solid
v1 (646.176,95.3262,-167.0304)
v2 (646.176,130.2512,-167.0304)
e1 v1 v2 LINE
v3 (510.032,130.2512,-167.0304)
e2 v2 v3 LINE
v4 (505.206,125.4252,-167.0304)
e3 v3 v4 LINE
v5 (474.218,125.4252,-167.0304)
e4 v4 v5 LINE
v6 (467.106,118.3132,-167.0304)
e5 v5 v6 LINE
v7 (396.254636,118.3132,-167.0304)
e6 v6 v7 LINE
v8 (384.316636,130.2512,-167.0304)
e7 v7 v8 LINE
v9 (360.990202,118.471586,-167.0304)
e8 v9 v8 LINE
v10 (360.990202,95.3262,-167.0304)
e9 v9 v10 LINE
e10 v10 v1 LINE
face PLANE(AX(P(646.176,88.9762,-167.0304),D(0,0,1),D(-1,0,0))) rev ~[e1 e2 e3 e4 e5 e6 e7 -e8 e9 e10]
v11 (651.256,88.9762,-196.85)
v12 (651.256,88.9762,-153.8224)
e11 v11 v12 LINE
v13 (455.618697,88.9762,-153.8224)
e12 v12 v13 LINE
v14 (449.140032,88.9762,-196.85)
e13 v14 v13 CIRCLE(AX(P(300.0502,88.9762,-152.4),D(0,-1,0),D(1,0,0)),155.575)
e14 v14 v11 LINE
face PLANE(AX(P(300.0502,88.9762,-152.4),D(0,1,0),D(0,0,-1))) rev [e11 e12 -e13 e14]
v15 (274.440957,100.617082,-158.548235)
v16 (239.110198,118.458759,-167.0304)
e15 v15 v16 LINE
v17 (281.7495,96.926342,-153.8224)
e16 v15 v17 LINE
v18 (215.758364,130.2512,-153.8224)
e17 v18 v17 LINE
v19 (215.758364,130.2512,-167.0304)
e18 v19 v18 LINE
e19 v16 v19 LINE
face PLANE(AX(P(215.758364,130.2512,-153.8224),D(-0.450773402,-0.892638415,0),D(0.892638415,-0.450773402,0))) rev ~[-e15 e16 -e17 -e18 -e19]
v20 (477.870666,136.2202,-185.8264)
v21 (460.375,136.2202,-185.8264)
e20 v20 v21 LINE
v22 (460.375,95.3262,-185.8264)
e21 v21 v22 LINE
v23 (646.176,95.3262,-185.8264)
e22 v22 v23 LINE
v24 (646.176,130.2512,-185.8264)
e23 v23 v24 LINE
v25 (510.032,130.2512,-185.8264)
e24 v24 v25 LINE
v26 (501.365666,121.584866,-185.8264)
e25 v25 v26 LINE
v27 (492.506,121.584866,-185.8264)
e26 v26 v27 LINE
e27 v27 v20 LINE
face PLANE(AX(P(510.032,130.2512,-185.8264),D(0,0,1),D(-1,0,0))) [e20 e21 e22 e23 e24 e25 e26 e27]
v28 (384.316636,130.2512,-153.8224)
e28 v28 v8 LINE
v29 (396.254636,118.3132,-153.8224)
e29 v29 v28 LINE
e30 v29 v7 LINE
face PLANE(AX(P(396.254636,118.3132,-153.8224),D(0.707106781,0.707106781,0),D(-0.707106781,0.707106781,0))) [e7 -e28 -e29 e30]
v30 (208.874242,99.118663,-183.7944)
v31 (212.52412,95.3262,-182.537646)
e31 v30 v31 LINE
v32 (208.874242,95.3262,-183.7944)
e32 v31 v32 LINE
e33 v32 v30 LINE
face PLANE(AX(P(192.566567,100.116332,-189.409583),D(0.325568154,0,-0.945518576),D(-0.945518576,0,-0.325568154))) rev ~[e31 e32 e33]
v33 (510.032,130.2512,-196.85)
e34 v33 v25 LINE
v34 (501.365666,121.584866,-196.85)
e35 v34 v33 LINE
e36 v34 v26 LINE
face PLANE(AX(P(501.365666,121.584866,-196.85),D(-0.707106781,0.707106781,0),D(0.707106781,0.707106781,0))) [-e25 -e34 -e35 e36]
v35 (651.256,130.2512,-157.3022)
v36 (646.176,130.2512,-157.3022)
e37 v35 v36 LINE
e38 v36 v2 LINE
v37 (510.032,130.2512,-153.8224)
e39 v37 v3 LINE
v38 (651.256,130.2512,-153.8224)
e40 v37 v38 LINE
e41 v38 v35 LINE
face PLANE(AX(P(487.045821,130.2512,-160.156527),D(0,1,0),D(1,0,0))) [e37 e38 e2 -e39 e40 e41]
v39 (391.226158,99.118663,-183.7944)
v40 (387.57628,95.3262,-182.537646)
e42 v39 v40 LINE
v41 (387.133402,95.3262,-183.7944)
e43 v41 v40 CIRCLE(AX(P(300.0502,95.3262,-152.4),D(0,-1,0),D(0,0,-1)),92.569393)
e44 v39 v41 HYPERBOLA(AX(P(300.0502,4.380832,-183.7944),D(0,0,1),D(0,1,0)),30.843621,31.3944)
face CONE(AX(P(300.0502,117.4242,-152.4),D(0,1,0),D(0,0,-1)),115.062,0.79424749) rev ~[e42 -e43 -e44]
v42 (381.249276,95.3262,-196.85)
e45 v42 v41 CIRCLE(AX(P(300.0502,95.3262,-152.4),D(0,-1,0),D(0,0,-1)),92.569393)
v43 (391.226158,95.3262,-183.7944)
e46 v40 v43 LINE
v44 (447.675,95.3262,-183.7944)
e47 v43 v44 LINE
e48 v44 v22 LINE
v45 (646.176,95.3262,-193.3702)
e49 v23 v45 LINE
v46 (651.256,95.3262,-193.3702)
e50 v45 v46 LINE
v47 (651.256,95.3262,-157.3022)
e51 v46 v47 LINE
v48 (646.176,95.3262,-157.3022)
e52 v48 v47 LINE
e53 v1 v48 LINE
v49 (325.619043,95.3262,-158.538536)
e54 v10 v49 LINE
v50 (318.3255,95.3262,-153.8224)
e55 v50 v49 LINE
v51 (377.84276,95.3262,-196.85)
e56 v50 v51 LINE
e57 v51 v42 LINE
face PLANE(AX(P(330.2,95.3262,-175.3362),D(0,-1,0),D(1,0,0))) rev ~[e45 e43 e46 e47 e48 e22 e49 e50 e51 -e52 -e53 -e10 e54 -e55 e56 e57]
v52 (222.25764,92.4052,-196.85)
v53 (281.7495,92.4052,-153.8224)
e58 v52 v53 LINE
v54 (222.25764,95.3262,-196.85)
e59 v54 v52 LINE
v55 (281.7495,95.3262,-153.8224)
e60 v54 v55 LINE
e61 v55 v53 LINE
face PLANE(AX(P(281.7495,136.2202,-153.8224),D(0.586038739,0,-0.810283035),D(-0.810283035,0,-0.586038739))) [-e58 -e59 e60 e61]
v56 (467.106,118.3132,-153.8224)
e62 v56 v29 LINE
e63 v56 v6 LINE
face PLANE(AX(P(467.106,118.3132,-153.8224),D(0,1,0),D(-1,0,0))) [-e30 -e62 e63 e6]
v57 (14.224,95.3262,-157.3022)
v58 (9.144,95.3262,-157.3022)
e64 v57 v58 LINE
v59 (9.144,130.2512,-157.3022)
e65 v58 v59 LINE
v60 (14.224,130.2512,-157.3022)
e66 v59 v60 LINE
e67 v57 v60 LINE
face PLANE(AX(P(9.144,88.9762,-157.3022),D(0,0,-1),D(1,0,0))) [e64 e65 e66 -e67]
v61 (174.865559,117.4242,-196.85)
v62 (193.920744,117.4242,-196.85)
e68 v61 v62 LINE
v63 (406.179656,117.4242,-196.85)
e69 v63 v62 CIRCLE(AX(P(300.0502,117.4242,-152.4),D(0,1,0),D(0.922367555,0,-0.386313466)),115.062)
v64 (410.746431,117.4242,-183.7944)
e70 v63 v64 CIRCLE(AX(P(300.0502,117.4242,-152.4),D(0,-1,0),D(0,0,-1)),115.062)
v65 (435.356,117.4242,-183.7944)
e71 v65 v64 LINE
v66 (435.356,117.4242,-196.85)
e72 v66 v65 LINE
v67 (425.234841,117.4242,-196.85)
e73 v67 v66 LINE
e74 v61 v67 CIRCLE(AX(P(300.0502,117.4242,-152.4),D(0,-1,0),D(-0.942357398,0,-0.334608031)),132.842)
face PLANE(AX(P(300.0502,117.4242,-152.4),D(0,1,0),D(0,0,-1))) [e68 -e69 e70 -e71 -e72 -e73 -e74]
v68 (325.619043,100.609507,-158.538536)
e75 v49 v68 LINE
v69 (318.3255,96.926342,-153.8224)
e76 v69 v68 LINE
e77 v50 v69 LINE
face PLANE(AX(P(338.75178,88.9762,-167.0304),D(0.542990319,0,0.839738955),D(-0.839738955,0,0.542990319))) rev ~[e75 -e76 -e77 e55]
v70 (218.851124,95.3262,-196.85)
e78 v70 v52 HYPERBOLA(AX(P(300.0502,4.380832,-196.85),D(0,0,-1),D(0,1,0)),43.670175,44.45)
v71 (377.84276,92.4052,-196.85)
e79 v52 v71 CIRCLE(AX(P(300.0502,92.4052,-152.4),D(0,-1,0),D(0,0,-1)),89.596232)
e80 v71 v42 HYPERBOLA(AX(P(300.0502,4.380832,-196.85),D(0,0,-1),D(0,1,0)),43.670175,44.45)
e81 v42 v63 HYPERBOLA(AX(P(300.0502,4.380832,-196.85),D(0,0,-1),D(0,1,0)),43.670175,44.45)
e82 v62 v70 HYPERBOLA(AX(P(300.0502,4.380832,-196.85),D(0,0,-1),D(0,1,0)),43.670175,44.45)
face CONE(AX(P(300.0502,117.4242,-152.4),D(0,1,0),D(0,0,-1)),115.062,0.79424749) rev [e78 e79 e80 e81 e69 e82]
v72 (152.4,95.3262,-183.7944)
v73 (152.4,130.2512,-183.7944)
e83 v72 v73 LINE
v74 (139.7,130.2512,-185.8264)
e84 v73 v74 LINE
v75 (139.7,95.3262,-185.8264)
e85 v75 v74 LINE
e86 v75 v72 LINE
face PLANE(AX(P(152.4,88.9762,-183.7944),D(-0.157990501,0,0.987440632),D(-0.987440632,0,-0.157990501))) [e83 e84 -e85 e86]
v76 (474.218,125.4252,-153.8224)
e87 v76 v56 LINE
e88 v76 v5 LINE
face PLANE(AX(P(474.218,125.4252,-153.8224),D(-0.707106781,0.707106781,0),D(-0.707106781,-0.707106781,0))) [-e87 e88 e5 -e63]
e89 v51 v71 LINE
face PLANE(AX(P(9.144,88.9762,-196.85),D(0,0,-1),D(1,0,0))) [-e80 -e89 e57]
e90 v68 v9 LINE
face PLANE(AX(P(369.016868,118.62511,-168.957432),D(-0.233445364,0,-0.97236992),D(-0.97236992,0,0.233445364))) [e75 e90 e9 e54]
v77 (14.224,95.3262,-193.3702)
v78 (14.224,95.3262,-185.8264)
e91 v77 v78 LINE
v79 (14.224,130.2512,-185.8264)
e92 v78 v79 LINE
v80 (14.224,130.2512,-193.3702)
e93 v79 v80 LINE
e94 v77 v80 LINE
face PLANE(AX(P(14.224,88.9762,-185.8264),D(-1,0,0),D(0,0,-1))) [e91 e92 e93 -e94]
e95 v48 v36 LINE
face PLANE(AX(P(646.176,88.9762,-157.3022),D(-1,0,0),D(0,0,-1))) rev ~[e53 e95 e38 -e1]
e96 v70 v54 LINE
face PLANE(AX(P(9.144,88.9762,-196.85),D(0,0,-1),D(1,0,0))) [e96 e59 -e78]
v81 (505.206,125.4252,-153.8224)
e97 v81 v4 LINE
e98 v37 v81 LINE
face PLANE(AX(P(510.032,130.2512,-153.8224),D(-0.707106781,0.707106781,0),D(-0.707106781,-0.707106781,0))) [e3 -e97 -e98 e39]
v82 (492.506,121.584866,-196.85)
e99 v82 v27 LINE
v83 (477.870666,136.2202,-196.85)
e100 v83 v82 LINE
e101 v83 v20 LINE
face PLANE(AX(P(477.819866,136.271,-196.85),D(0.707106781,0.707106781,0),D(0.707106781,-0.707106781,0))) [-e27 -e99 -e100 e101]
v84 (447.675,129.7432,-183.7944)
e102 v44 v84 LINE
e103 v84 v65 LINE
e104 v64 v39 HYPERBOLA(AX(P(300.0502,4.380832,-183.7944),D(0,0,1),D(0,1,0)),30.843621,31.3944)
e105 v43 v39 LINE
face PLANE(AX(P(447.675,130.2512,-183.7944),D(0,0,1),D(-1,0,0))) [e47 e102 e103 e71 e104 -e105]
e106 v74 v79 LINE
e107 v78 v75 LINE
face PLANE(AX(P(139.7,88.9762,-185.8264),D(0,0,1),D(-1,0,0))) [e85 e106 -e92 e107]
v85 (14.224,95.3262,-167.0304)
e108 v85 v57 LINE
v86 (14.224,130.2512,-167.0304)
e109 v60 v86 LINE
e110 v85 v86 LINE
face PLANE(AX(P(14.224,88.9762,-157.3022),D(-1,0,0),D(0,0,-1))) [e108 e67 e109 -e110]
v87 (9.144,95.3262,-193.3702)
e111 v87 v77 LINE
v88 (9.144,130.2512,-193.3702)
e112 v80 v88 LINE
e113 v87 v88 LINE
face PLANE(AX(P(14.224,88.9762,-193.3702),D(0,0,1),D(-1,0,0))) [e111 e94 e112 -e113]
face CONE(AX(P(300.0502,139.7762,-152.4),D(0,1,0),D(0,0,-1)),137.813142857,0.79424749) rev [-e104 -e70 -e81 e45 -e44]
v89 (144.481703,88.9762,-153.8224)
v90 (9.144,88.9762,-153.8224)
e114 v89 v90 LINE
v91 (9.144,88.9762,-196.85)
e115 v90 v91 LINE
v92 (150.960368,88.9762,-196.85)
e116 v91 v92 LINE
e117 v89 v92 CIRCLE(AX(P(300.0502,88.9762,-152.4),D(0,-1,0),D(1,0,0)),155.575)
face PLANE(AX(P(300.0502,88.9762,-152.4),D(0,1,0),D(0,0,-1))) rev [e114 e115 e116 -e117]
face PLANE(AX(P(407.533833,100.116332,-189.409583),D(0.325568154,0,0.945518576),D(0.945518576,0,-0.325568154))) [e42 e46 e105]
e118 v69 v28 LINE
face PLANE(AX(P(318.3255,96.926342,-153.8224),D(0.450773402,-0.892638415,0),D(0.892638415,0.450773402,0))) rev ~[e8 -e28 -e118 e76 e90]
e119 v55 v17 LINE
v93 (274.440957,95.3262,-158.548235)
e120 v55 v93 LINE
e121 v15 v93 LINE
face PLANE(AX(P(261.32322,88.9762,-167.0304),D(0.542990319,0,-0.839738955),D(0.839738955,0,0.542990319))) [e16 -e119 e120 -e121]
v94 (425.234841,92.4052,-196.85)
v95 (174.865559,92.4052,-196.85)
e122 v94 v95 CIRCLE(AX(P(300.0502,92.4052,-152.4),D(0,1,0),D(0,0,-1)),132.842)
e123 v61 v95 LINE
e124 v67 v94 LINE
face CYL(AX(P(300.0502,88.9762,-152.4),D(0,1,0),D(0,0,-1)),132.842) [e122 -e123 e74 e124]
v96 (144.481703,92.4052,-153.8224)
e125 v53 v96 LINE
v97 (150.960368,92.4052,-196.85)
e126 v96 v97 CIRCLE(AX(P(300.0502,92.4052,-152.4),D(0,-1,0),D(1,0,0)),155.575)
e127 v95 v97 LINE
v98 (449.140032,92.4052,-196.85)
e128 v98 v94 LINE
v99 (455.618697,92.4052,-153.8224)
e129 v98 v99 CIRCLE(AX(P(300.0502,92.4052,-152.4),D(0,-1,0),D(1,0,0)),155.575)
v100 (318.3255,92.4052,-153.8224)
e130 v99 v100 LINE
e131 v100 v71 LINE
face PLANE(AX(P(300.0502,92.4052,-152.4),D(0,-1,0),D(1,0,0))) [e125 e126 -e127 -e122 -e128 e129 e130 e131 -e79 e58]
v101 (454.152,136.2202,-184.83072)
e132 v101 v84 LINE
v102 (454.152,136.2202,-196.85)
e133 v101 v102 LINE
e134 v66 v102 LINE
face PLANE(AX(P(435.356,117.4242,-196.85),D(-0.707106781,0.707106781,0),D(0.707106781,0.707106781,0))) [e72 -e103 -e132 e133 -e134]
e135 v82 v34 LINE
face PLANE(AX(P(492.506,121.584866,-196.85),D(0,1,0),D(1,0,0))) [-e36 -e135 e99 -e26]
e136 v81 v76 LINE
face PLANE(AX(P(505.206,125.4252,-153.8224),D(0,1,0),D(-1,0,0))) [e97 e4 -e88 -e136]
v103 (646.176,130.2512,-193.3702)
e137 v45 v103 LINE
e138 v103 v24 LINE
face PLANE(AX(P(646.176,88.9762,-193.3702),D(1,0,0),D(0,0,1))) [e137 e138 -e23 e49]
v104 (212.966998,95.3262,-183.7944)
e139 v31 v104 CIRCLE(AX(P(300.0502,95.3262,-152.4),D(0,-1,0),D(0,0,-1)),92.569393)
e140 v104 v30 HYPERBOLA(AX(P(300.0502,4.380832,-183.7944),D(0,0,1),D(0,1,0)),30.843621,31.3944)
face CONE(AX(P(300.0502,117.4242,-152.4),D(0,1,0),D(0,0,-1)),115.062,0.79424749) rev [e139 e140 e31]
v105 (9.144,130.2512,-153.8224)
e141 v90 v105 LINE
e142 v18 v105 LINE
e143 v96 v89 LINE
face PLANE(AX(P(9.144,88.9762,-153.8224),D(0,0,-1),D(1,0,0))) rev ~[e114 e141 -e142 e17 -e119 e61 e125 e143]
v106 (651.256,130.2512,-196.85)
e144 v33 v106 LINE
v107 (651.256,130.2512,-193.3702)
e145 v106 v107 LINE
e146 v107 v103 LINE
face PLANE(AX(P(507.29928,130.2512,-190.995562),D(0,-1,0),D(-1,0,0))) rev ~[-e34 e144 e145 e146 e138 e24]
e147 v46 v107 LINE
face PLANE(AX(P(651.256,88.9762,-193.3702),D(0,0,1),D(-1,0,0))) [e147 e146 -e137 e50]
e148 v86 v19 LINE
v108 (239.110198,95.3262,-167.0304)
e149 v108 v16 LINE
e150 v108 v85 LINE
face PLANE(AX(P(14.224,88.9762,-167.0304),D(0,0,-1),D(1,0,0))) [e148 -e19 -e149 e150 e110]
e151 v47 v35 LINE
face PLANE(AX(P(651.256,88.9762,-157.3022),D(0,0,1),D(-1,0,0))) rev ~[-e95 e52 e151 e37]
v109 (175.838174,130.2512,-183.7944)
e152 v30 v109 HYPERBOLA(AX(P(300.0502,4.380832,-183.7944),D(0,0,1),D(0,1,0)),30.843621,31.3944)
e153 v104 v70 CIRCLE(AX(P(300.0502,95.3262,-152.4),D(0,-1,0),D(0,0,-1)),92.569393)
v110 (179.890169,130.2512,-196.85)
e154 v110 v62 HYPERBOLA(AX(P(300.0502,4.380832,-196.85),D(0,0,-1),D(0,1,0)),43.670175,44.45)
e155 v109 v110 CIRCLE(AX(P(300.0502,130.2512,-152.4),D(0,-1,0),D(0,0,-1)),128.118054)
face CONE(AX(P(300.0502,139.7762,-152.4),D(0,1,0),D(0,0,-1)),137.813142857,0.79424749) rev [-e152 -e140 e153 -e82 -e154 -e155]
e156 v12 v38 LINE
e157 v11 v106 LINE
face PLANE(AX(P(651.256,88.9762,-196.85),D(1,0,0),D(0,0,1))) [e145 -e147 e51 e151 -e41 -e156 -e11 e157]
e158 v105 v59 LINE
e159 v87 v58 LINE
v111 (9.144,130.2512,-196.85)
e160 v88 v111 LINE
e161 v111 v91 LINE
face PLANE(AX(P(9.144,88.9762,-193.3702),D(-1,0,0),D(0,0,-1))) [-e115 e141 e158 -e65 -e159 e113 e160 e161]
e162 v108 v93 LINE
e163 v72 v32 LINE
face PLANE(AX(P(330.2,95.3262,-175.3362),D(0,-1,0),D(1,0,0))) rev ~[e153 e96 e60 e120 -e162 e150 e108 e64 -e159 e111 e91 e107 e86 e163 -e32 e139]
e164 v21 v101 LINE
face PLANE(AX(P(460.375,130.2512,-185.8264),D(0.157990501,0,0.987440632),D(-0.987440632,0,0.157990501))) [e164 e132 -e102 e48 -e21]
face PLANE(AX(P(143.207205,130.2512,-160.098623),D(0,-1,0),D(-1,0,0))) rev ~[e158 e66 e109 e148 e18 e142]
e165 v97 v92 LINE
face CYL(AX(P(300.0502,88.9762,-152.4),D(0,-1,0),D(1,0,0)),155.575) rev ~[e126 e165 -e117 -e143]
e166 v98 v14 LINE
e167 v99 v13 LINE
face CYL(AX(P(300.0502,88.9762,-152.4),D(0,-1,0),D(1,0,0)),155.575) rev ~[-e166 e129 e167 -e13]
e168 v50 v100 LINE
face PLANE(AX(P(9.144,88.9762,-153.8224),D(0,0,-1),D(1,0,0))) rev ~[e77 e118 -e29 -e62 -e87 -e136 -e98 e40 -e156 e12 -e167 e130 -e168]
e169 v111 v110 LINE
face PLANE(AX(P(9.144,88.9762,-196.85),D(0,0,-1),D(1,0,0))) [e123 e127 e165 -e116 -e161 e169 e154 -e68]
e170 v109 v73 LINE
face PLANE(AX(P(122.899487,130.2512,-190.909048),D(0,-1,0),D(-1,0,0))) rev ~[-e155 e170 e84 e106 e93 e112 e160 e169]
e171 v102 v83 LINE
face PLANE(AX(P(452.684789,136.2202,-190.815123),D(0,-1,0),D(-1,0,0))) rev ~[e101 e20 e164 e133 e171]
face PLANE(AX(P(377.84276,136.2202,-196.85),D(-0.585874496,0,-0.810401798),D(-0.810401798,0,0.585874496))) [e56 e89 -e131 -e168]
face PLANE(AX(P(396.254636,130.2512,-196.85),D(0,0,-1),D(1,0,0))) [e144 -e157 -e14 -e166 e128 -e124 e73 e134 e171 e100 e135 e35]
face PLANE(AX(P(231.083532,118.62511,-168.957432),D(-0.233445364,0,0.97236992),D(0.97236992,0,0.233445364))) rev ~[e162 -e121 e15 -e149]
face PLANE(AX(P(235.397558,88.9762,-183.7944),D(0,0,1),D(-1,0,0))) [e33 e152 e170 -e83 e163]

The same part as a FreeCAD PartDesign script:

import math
import FreeCAD as App
import Part
import Sketcher

V = App.Vector
Q = App.Units.Quantity


def add_polygon(sketch, points):
    """Adds a closed chain of lines whose ends are joined by coincident constraints."""
    first, n = sketch.GeometryCount, len(points)
    for a, b in zip(points, points[1:] + points[:1]):
        sketch.addGeometry(Part.LineSegment(App.Vector(*a, 0), App.Vector(*b, 0)), False)
    for i in range(n):
        sketch.addConstraint(Sketcher.Constraint("Coincident", first + i, 2, first + (i + 1) % n, 1))

doc = App.newDocument("Part")
body = doc.addObject("PartDesign::Body", "Body")

# Sketch on XZ plane
sketch1 = body.newObject("Sketcher::SketchObject", "Sketch")
sketch1.AttachmentSupport = (doc.getObject("XZ_Plane"), [""])
sketch1.MapMode = "FlatFace"
sketch1.AttachmentOffset = App.Placement(V(0, 0, -3.503 * 25.4), App.Rotation())
add_polygon(sketch1, [(9.1, -153.8), (281.7, -153.8), (261.3, -167), (14.2, -167), (14.2, -157.3), (9.1, -157.3)])  # lines 0-5
sketch1.addConstraint([
    Sketcher.Constraint("Horizontal", 0),
    Sketcher.Constraint("Horizontal", 2),
    Sketcher.Constraint("Vertical", 3),
    Sketcher.Constraint("Horizontal", 4),
    Sketcher.Constraint("Vertical", 5),
    Sketcher.Constraint("DistanceX", 4, 2, 4, 1, Q("0.2 in")),
    Sketcher.Constraint("DistanceY", 3, 1, 3, 2, Q("0.383 in")),
    Sketcher.Constraint("DistanceY", 5, 1, 5, 2, Q("0.137 in")),
    Sketcher.Constraint("DistanceX", -1, 1, 2, 2, Q("0.56 in")),
    Sketcher.Constraint("DistanceX", 0, 1, 0, 2, Q("10.7325 in")),
    Sketcher.Constraint("DistanceY", 0, 2, -1, 1, Q("6.056 in")),
    Sketcher.Constraint("DistanceX", 2, 2, 2, 1, 247.09922),
])
pad1 = body.newObject("PartDesign::Pad", "Pad")
pad1.Profile = sketch1
pad1.Length = Q("1.625 in")
pad1.Reversed = True
body2 = doc.addObject("PartDesign::Body", "Body001")

# Sketch on XZ plane
sketch2 = body2.newObject("Sketcher::SketchObject", "Sketch001")
sketch2.AttachmentSupport = (doc.getObject("XZ_Plane001"), [""])
sketch2.MapMode = "FlatFace"
sketch2.AttachmentOffset = App.Placement(V(0, 0, -3.503 * 25.4), App.Rotation())
sketch2.addGeometry([
    Part.LineSegment(V(230.5, -196.8, 0), V(9.1, -196.8, 0)),  # 0
    Part.LineSegment(V(9.1, -196.8, 0), V(9.1, -193.4, 0)),  # 1
    Part.LineSegment(V(9.1, -193.4, 0), V(14.2, -193.4, 0)),  # 2
    Part.LineSegment(V(14.2, -193.4, 0), V(14.2, -185.8, 0)),  # 3
    Part.LineSegment(V(14.2, -185.8, 0), V(139.7, -185.8, 0)),  # 4
    Part.LineSegment(V(139.7, -185.8, 0), V(152.4, -183.8, 0)),  # 5
    Part.LineSegment(V(152.4, -183.8, 0), V(235.4, -183.8, 0)),  # 6
    Part.LineSegment(V(235.4, -183.8, 0), V(226.4, -189.6, 0)),  # 7
    Part.ArcOfCircle(Part.Circle(V(300, -152.4, 0), V(0, 0, 1), 82.5), math.radians(-153.19), math.radians(-147.42)),  # 8
], False)
sketch2.addConstraint([
    Sketcher.Constraint("Coincident", 0, 2, 1, 1),
    Sketcher.Constraint("Coincident", 1, 2, 2, 1),
    Sketcher.Constraint("Coincident", 2, 2, 3, 1),
    Sketcher.Constraint("Coincident", 3, 2, 4, 1),
    Sketcher.Constraint("Coincident", 4, 2, 5, 1),
    Sketcher.Constraint("Coincident", 5, 2, 6, 1),
    Sketcher.Constraint("Coincident", 6, 2, 7, 1),
    Sketcher.Constraint("Coincident", 7, 2, 8, 1),
    Sketcher.Constraint("Coincident", 8, 2, 0, 1),
    Sketcher.Constraint("Horizontal", 0),
    Sketcher.Constraint("Vertical", 1),
    Sketcher.Constraint("Horizontal", 2),
    Sketcher.Constraint("Vertical", 3),
    Sketcher.Constraint("Horizontal", 4),
    Sketcher.Constraint("Horizontal", 6),
    Sketcher.Constraint("Radius", 8, Q("3.25 in")),
    Sketcher.Constraint("DistanceX", 2, 1, 2, 2, Q("0.2 in")),
    Sketcher.Constraint("DistanceY", 8, 3, -1, 1, Q("6 in")),
    Sketcher.Constraint("DistanceX", -1, 1, 5, 2, Q("6 in")),
    Sketcher.Constraint("DistanceX", 4, 1, 4, 2, Q("4.94 in")),
    Sketcher.Constraint("DistanceX", -1, 1, 4, 2, Q("5.5 in")),
    Sketcher.Constraint("DistanceY", 1, 1, 1, 2, Q("0.137 in")),
    Sketcher.Constraint("DistanceY", 3, 1, 3, 2, Q("0.297 in")),
    Sketcher.Constraint("DistanceY", 0, 2, -1, 1, Q("7.75 in")),
    Sketcher.Constraint("DistanceY", 4, 2, 5, 2, Q("0.08 in")),
    Sketcher.Constraint("DistanceY", 7, 2, 6, 2, Q("0.23 in")),
    Sketcher.Constraint("DistanceX", -1, 1, 8, 3, Q("11.8125 in")),
    Sketcher.Constraint("DistanceX", 7, 2, 6, 2, 9.034701),
])
pad2 = body2.newObject("PartDesign::Pad", "Pad001")
pad2.Profile = sketch2
pad2.Length = Q("1.625 in")
pad2.Reversed = True
body3 = doc.addObject("PartDesign::Body", "Body002")

# Sketch on XZ plane
sketch3 = body3.newObject("Sketcher::SketchObject", "Sketch002")
sketch3.AttachmentSupport = (doc.getObject("XZ_Plane002"), [""])
sketch3.MapMode = "FlatFace"
sketch3.AttachmentOffset = App.Placement(V(0, 0, -3.503 * 25.4), App.Rotation())
sketch3.addGeometry([
    Part.LineSegment(V(373.7, -189.6, 0), V(364.7, -183.8, 0)),  # 0
    Part.LineSegment(V(364.7, -183.8, 0), V(447.7, -183.8, 0)),  # 1
    Part.LineSegment(V(447.7, -183.8, 0), V(460.4, -185.8, 0)),  # 2
    Part.LineSegment(V(460.4, -185.8, 0), V(646.2, -185.8, 0)),  # 3
    Part.LineSegment(V(646.2, -185.8, 0), V(646.2, -193.4, 0)),  # 4
    Part.LineSegment(V(646.2, -193.4, 0), V(651.3, -193.4, 0)),  # 5
    Part.LineSegment(V(651.3, -193.4, 0), V(651.3, -196.8, 0)),  # 6
    Part.LineSegment(V(651.3, -196.8, 0), V(369.6, -196.8, 0)),  # 7
    Part.ArcOfCircle(Part.Circle(V(300, -152.4, 0), V(0, 0, 1), 82.5), math.radians(-32.58), math.radians(-26.81)),  # 8
], False)
sketch3.addConstraint([
    Sketcher.Constraint("Coincident", 0, 2, 1, 1),
    Sketcher.Constraint("Coincident", 1, 2, 2, 1),
    Sketcher.Constraint("Coincident", 2, 2, 3, 1),
    Sketcher.Constraint("Coincident", 3, 2, 4, 1),
    Sketcher.Constraint("Coincident", 4, 2, 5, 1),
    Sketcher.Constraint("Coincident", 5, 2, 6, 1),
    Sketcher.Constraint("Coincident", 6, 2, 7, 1),
    Sketcher.Constraint("Coincident", 7, 2, 8, 1),
    Sketcher.Constraint("Coincident", 8, 2, 0, 1),
    Sketcher.Constraint("Horizontal", 1),
    Sketcher.Constraint("Horizontal", 3),
    Sketcher.Constraint("Vertical", 4),
    Sketcher.Constraint("Horizontal", 5),
    Sketcher.Constraint("Vertical", 6),
    Sketcher.Constraint("Horizontal", 7),
    Sketcher.Constraint("Radius", 8, Q("3.25 in")),
    Sketcher.Constraint("DistanceX", 5, 1, 5, 2, Q("0.2 in")),
    Sketcher.Constraint("DistanceY", 8, 3, -1, 1, Q("6 in")),
    Sketcher.Constraint("DistanceX", 1, 2, 2, 2, Q("0.5 in")),
    Sketcher.Constraint("DistanceX", 3, 1, 3, 2, Q("7.315 in")),
    Sketcher.Constraint("DistanceY", 4, 2, 4, 1, Q("0.297 in")),
    Sketcher.Constraint("DistanceY", 6, 2, 6, 1, Q("0.137 in")),
    Sketcher.Constraint("DistanceX", -1, 1, 3, 2, Q("25.44 in")),
    Sketcher.Constraint("DistanceY", 6, 2, -1, 1, Q("7.75 in")),
    Sketcher.Constraint("DistanceY", 2, 2, 1, 2, Q("0.08 in")),
    Sketcher.Constraint("DistanceY", 8, 2, 0, 2, Q("0.23 in")),
    Sketcher.Constraint("DistanceX", -1, 1, 8, 3, Q("11.8125 in")),
    Sketcher.Constraint("DistanceX", 0, 2, 8, 2, 9.034701),
])
pad3 = body3.newObject("PartDesign::Pad", "Pad002")
pad3.Profile = sketch3
pad3.Length = Q("1.625 in")
pad3.Reversed = True
body4 = doc.addObject("PartDesign::Body", "Body003")

# Sketch on XZ plane
sketch4 = body4.newObject("Sketcher::SketchObject", "Sketch003")
sketch4.AttachmentSupport = (doc.getObject("XZ_Plane003"), [""])
sketch4.MapMode = "FlatFace"
sketch4.AttachmentOffset = App.Placement(V(0, 0, -3.503 * 25.4), App.Rotation())
add_polygon(sketch4, [(646.2, -167), (338.8, -167), (318.3, -153.8), (651.3, -153.8), (651.3, -157.3), (646.2, -157.3)])  # lines 0-5
sketch4.addConstraint([
    Sketcher.Constraint("Horizontal", 0),
    Sketcher.Constraint("Horizontal", 2),
    Sketcher.Constraint("Vertical", 3),
    Sketcher.Constraint("Horizontal", 4),
    Sketcher.Constraint("Vertical", 5),
    Sketcher.Constraint("DistanceX", 4, 2, 4, 1, Q("0.2 in")),
    Sketcher.Constraint("DistanceY", 3, 2, 3, 1, Q("0.137 in")),
    Sketcher.Constraint("DistanceY", 5, 2, 5, 1, Q("0.383 in")),
    Sketcher.Constraint("DistanceX", -1, 1, 2, 2, Q("25.64 in")),
    Sketcher.Constraint("DistanceX", 2, 1, 2, 2, Q("13.1075 in")),
    Sketcher.Constraint("DistanceY", 0, 2, -1, 1, Q("6.576 in")),
    Sketcher.Constraint("DistanceX", 0, 2, 0, 1, 307.42422),
])
pad4 = body4.newObject("PartDesign::Pad", "Pad003")
pad4.Profile = sketch4
pad4.Length = Q("1.625 in")
pad4.Reversed = True
body5 = doc.addObject("PartDesign::Body", "Body004")

# Sketch on XY plane
sketch5 = body5.newObject("Sketcher::SketchObject", "Sketch004")
sketch5.AttachmentSupport = (doc.getObject("XY_Plane004"), [""])
sketch5.MapMode = "FlatFace"
sketch5.AttachmentOffset = App.Placement(V(0, 0, -6.056 * 25.4), App.Rotation())
add_polygon(sketch5, [(318.3, 96.9), (384.3, 130.3), (215.8, 130.3), (281.7, 96.9), (281.7, 92.2), (318.3, 92.2)])  # lines 0-5
sketch5.addConstraint([
    Sketcher.Constraint("Horizontal", 1),
    Sketcher.Constraint("Vertical", 3),
    Sketcher.Constraint("Horizontal", 4),
    Sketcher.Constraint("Vertical", 5),
    Sketcher.Constraint("Horizontal", 2, 2, 5, 2),
    Sketcher.Constraint("Equal", 0, 2),
    Sketcher.Constraint("DistanceX", 4, 1, 4, 2, Q("1.44 in")),
    Sketcher.Constraint("DistanceY", 3, 2, 1, 2, Q("1.5 in")),
    Sketcher.Constraint("DistanceY", -1, 1, 0, 2, Q("5.128 in")),
    Sketcher.Constraint("DistanceX", -1, 1, 2, 2, Q("11.0925 in")),
    Sketcher.Constraint("DistanceX", 1, 2, 1, 1, 168.558272),
    Sketcher.Constraint("DistanceY", 3, 2, 3, 1, 4.775142),
])
pad5 = body5.newObject("PartDesign::Pad", "Pad004")
pad5.Profile = sketch5
pad5.Length = Q("0.42 in")
pad5.Reversed = True
doc.recompute()

body6 = doc.addObject("PartDesign::Body", "Body005")
body6.BaseFeature = body5
boolean = body.newObject("PartDesign::Boolean", "Boolean")
boolean.Type = "Cut"
boolean.addObjects([body6])
doc.recompute()

boolean2 = body4.newObject("PartDesign::Boolean", "Boolean001")
boolean2.Type = "Cut"
boolean2.addObjects([body5])
body7 = doc.addObject("PartDesign::Body", "Body006")

# Sketch on XY plane
sketch6 = body7.newObject("Sketcher::SketchObject", "Sketch005")
sketch6.AttachmentSupport = (doc.getObject("XY_Plane006"), [""])
sketch6.MapMode = "FlatFace"
sketch6.AttachmentOffset = App.Placement(V(0, 0, -6.056 * 25.4), App.Rotation())
add_polygon(sketch6, [(318.3, 96.9), (384.3, 130.3), (215.8, 130.3), (281.7, 96.9), (281.7, 92.2), (318.3, 92.2)])  # lines 0-5
sketch6.addConstraint([
    Sketcher.Constraint("Horizontal", 1),
    Sketcher.Constraint("Vertical", 3),
    Sketcher.Constraint("Horizontal", 4),
    Sketcher.Constraint("Vertical", 5),
    Sketcher.Constraint("Horizontal", 2, 2, 5, 2),
    Sketcher.Constraint("Equal", 0, 2),
    Sketcher.Constraint("DistanceX", 4, 1, 4, 2, Q("1.44 in")),
    Sketcher.Constraint("DistanceY", 3, 2, 1, 2, Q("1.5 in")),
    Sketcher.Constraint("DistanceY", -1, 1, 0, 2, Q("5.128 in")),
    Sketcher.Constraint("DistanceX", -1, 1, 2, 2, Q("11.0925 in")),
    Sketcher.Constraint("DistanceX", 1, 2, 1, 1, 168.558272),
    Sketcher.Constraint("DistanceY", 3, 2, 3, 1, 4.775142),
])
pad6 = body7.newObject("PartDesign::Pad", "Pad005")
pad6.Profile = sketch6
pad6.Length = Q("1.18 in")
pad6.Reversed = True
doc.recompute()

body8 = doc.addObject("PartDesign::Body", "Body007")
body8.BaseFeature = body7
boolean3 = body.newObject("PartDesign::Boolean", "Boolean002")
boolean3.Type = "Cut"
boolean3.addObjects([body8])
doc.recompute()

boolean4 = body4.newObject("PartDesign::Boolean", "Boolean003")
boolean4.Type = "Cut"
boolean4.addObjects([body7])

# Sketch on XY plane
sketch7 = body4.newObject("Sketcher::SketchObject", "Sketch006")
sketch7.AttachmentSupport = (doc.getObject("XY_Plane003"), [""])
sketch7.MapMode = "FlatFace"
sketch7.AttachmentOffset = App.Placement(V(0, 0, -6.056 * 25.4), App.Rotation())
add_polygon(sketch7, [(505, 125), (510, 130), (384, 130), (396, 118), (467, 118), (474, 125)])  # lines 0-5
sketch7.addConstraint([
    Sketcher.Constraint("Horizontal", 1),
    Sketcher.Constraint("Horizontal", 3),
    Sketcher.Constraint("Horizontal", 5),
    Sketcher.Constraint("Perpendicular", 0, 2),
    Sketcher.Constraint("Perpendicular", 2, 4),
    Sketcher.Constraint("Angle", 0, Q("45 deg")),
    Sketcher.Constraint("DistanceX", 5, 1, 5, 2, Q("1.22 in")),
    Sketcher.Constraint("DistanceX", 3, 2, 5, 2, Q("1.5 in")),
    Sketcher.Constraint("DistanceX", -1, 1, 0, 2, Q("20.08 in")),
    Sketcher.Constraint("DistanceX", -1, 1, 3, 2, Q("18.39 in")),
    Sketcher.Constraint("DistanceY", -1, 1, 0, 2, Q("5.128 in")),
    Sketcher.Constraint("DistanceX", 1, 2, 1, 1, 125.715364),
])
pocket1 = body4.newObject("PartDesign::Pocket", "Pocket")
pocket1.Profile = sketch7
pocket1.Length = Q("0.6 in")
body9 = doc.addObject("PartDesign::Body", "Body008")

# Sketch on XY plane
sketch8 = body9.newObject("Sketcher::SketchObject", "Sketch007")
sketch8.AttachmentSupport = (doc.getObject("XY_Plane008"), [""])
sketch8.MapMode = "FlatFace"
sketch8.AttachmentOffset = App.Placement(V(0, 0, -6.056 * 25.4), App.Rotation())
add_polygon(sketch8, [(318.3, 96.9), (384.3, 130.3), (215.8, 130.3), (281.7, 96.9), (281.7, 92.2), (318.3, 92.2)])  # lines 0-5
sketch8.addConstraint([
    Sketcher.Constraint("Horizontal", 1),
    Sketcher.Constraint("Vertical", 3),
    Sketcher.Constraint("Horizontal", 4),
    Sketcher.Constraint("Vertical", 5),
    Sketcher.Constraint("Horizontal", 2, 2, 5, 2),
    Sketcher.Constraint("Equal", 0, 2),
    Sketcher.Constraint("DistanceX", 4, 1, 4, 2, Q("1.44 in")),
    Sketcher.Constraint("DistanceY", 3, 2, 1, 2, Q("1.5 in")),
    Sketcher.Constraint("DistanceY", -1, 1, 0, 2, Q("5.128 in")),
    Sketcher.Constraint("DistanceX", -1, 1, 2, 2, Q("11.0925 in")),
    Sketcher.Constraint("DistanceX", 1, 2, 1, 1, 168.558272),
    Sketcher.Constraint("DistanceY", 3, 2, 3, 1, 4.775142),
])
pad7 = body9.newObject("PartDesign::Pad", "Pad006")
pad7.Profile = sketch8
pad7.Length = 44.0276
pad7.Reversed = True
doc.recompute()

body10 = doc.addObject("PartDesign::Body", "Body009")
body10.BaseFeature = body9
boolean5 = body2.newObject("PartDesign::Boolean", "Boolean004")
boolean5.Type = "Cut"
boolean5.addObjects([body10])
doc.recompute()

boolean6 = body3.newObject("PartDesign::Boolean", "Boolean005")
boolean6.Type = "Cut"
boolean6.addObjects([body9])

# Sketch on XZ plane
sketch9 = body3.newObject("Sketcher::SketchObject", "Sketch008")
sketch9.AttachmentSupport = (doc.getObject("XZ_Plane002"), [""])
sketch9.MapMode = "FlatFace"
sketch9.AttachmentOffset = App.Placement(V(0, 0, -5.128 * 25.4), App.Rotation())
add_polygon(sketch9, [(510, -197), (396, -197), (396, -184), (448, -184), (460, -186), (510, -186)])  # lines 0-5
sketch9.addConstraint([
    Sketcher.Constraint("Horizontal", 0),
    Sketcher.Constraint("Vertical", 1),
    Sketcher.Constraint("Horizontal", 2),
    Sketcher.Constraint("Horizontal", 4),
    Sketcher.Constraint("Vertical", 5),
    Sketcher.Constraint("DistanceX", 2, 2, 3, 2, Q("0.5 in")),
    Sketcher.Constraint("DistanceX", 4, 1, 4, 2, Q("1.955 in")),
    Sketcher.Constraint("DistanceY", 1, 1, 1, 2, Q("0.514 in")),
    Sketcher.Constraint("DistanceY", 5, 2, 5, 1, Q("0.434 in")),
    Sketcher.Constraint("DistanceY", 0, 2, -1, 1, Q("7.75 in")),
    Sketcher.Constraint("DistanceX", -1, 1, 4, 2, Q("20.08 in")),
    Sketcher.Constraint("DistanceX", 0, 2, 0, 1, 113.777364),
])
pad8 = body3.newObject("PartDesign::Pad", "Pad007")
pad8.Profile = sketch9
pad8.Length = Q("0.235 in")
pad8.Reversed = True

# Sketch on XY plane
sketch10 = body3.newObject("Sketcher::SketchObject", "Sketch009")
sketch10.AttachmentSupport = (doc.getObject("XY_Plane002"), [""])
sketch10.MapMode = "FlatFace"
sketch10.AttachmentOffset = App.Placement(V(0, 0, -7.75 * 25.4), App.Rotation())
add_polygon(sketch10, [(435, 117), (454, 136), (478, 136), (493, 122), (501, 122), (532, 152), (332, 152), (332, 117)])  # lines 0-7
sketch10.addConstraint([
    Sketcher.Constraint("Horizontal", 1),
    Sketcher.Constraint("Horizontal", 3),
    Sketcher.Constraint("Horizontal", 5),
    Sketcher.Constraint("Vertical", 6),
    Sketcher.Constraint("Horizontal", 7),
    Sketcher.Constraint("Perpendicular", 0, 2),
    Sketcher.Constraint("Perpendicular", 2, 4),
    Sketcher.Constraint("Angle", 0, Q("45 deg")),
    Sketcher.Constraint("DistanceX", -1, 1, 2, 2, Q("19.39 in")),
    Sketcher.Constraint("DistanceX", -1, 1, 7, 2, Q("17.14 in")),
    Sketcher.Constraint("DistanceX", -1, 1, 0, 2, Q("17.882 in")),
    Sketcher.Constraint("DistanceY", -1, 1, 0, 2, Q("5.365 in")),
    Sketcher.Constraint("DistanceX", 1, 2, 3, 2, Q("0.927 in")),
    Sketcher.Constraint("DistanceX", 7, 1, 7, 2, 102.8753),
    Sketcher.Constraint("Distance", 2, 20.769329),
    Sketcher.Constraint("DistanceX", 5, 2, 5, 1, 199.066798),
])
pocket2 = body3.newObject("PartDesign::Pocket", "Pocket001")
pocket2.Profile = sketch10
pocket2.Length = Q("0.75 in")
pocket2.Reversed = True
body2.AllowCompound = True
doc.recompute()

boolean7 = body2.newObject("PartDesign::Boolean", "Boolean006")
boolean7.Type = "Fuse"
boolean7.addObjects([body3])

# Sketch on YZ plane
sketch11 = body2.newObject("Sketcher::SketchObject", "Sketch010")
sketch11.AttachmentSupport = (doc.getObject("YZ_Plane001"), [""])
sketch11.MapMode = "FlatFace"
sketch11.AttachmentOffset = App.Placement(V(0, 0, 11.813 * 25.4), App.Rotation())
add_polygon(sketch11, [(89, -239), (89, -285), (117, -285), (117, -267)])  # lines 0-3
sketch11.addGeometry(Part.LineSegment(V(117, -152, 0), V(89, -152, 0)), True)  # axis
sketch11.addConstraint([
    Sketcher.Constraint("Vertical", 0),
    Sketcher.Constraint("Horizontal", 1),
    Sketcher.Constraint("Vertical", 2),
    Sketcher.Constraint("Horizontal", 4),
    Sketcher.Constraint("Vertical", 2, 2, 4, 1),
    Sketcher.Constraint("Vertical", 3, 2, 4, 2),
    Sketcher.Constraint("DistanceY", 2, 1, 2, 2, Q("0.7 in")),
    Sketcher.Constraint("DistanceY", 4, 1, -1, 1, Q("6 in")),
    Sketcher.Constraint("DistanceX", 1, 1, 1, 2, Q("1.12 in")),
    Sketcher.Constraint("DistanceY", 0, 2, 0, 1, Q("1.84 in")),
    Sketcher.Constraint("DistanceY", 0, 2, -1, 1, Q("11.23 in")),
    Sketcher.Constraint("DistanceX", -1, 1, 0, 2, Q("3.503 in")),
])
revolution = body2.newObject("PartDesign::Revolution", "Revolution")
revolution.Profile = sketch11
revolution.ReferenceAxis = (sketch11, ["Axis0"])
revolution.Angle = 71

# Sketch on YZ plane
sketch12 = body2.newObject("Sketcher::SketchObject", "Sketch011")
sketch12.AttachmentSupport = (doc.getObject("YZ_Plane001"), [""])
sketch12.MapMode = "FlatFace"
sketch12.AttachmentOffset = App.Placement(V(0, 0, 11.813 * 25.4), App.Rotation())
add_polygon(sketch12, [(89, -239), (89, -285), (117, -285), (117, -267)])  # lines 0-3
sketch12.addGeometry(Part.LineSegment(V(89, -152, 0), V(117, -152, 0)), True)  # axis
sketch12.addConstraint([
    Sketcher.Constraint("Vertical", 0),
    Sketcher.Constraint("Horizontal", 1),
    Sketcher.Constraint("Vertical", 2),
    Sketcher.Constraint("Horizontal", 4),
    Sketcher.Constraint("Vertical", 3, 2, 4, 1),
    Sketcher.Constraint("Vertical", 2, 2, 4, 2),
    Sketcher.Constraint("DistanceY", 2, 1, 2, 2, Q("0.7 in")),
    Sketcher.Constraint("DistanceY", 4, 1, -1, 1, Q("6 in")),
    Sketcher.Constraint("DistanceX", 1, 1, 1, 2, Q("1.12 in")),
    Sketcher.Constraint("DistanceY", 0, 2, 0, 1, Q("1.84 in")),
    Sketcher.Constraint("DistanceY", 0, 2, -1, 1, Q("11.23 in")),
    Sketcher.Constraint("DistanceX", -1, 1, 0, 2, Q("3.503 in")),
])
revolution2 = body2.newObject("PartDesign::Revolution", "Revolution001")
revolution2.Profile = sketch12
revolution2.ReferenceAxis = (sketch12, ["Axis0"])
revolution2.Angle = 71
body11 = doc.addObject("PartDesign::Body", "Body010")

# Sketch on YZ plane
sketch13 = body11.newObject("Sketcher::SketchObject", "Sketch012")
sketch13.AttachmentSupport = (doc.getObject("YZ_Plane010"), [""])
sketch13.MapMode = "FlatFace"
sketch13.AttachmentOffset = App.Placement(V(0, 0, 11.813 * 25.4), App.Rotation())
add_polygon(sketch13, [(89, -239), (140, -290), (140, -171), (89, -171)])  # lines 0-3
sketch13.addGeometry(Part.LineSegment(V(140, -152, 0), V(89, -152, 0)), True)  # axis
sketch13.addConstraint([
    Sketcher.Constraint("Vertical", 1),
    Sketcher.Constraint("Horizontal", 2),
    Sketcher.Constraint("Vertical", 3),
    Sketcher.Constraint("Horizontal", 4),
    Sketcher.Constraint("Vertical", 1, 2, 4, 1),
    Sketcher.Constraint("Vertical", 3, 2, 4, 2),
    Sketcher.Constraint("DistanceX", 2, 2, 2, 1, Q("2 in")),
    Sketcher.Constraint("DistanceY", 4, 1, -1, 1, Q("6 in")),
    Sketcher.Constraint("DistanceY", 3, 2, 3, 1, Q("2.64 in")),
    Sketcher.Constraint("DistanceY", 1, 2, -1, 1, Q("6.75 in")),
    Sketcher.Constraint("DistanceX", -1, 1, 0, 2, Q("5.503 in")),
    Sketcher.Constraint("DistanceY", 1, 1, 1, 2, 118.763143),
])
revolution3 = body11.newObject("PartDesign::Revolution", "Revolution002")
revolution3.Profile = sketch13
revolution3.ReferenceAxis = (sketch13, ["Axis0"])
revolution3.Angle = 76.5

# Sketch on YZ plane
sketch14 = body11.newObject("Sketcher::SketchObject", "Sketch013")
sketch14.AttachmentSupport = (doc.getObject("YZ_Plane010"), [""])
sketch14.MapMode = "FlatFace"
sketch14.AttachmentOffset = App.Placement(V(0, 0, 11.813 * 25.4), App.Rotation())
add_polygon(sketch14, [(89, -239), (140, -290), (140, -171), (89, -171)])  # lines 0-3
sketch14.addGeometry(Part.LineSegment(V(89, -152, 0), V(140, -152, 0)), True)  # axis
sketch14.addConstraint([
    Sketcher.Constraint("Vertical", 1),
    Sketcher.Constraint("Horizontal", 2),
    Sketcher.Constraint("Vertical", 3),
    Sketcher.Constraint("Horizontal", 4),
    Sketcher.Constraint("Vertical", 3, 2, 4, 1),
    Sketcher.Constraint("Vertical", 1, 2, 4, 2),
    Sketcher.Constraint("DistanceX", 2, 2, 2, 1, Q("2 in")),
    Sketcher.Constraint("DistanceY", 4, 1, -1, 1, Q("6 in")),
    Sketcher.Constraint("DistanceY", 3, 2, 3, 1, Q("2.64 in")),
    Sketcher.Constraint("DistanceY", 1, 2, -1, 1, Q("6.75 in")),
    Sketcher.Constraint("DistanceX", -1, 1, 0, 2, Q("5.503 in")),
    Sketcher.Constraint("DistanceY", 1, 1, 1, 2, 118.763143),
])
revolution4 = body11.newObject("PartDesign::Revolution", "Revolution003")
revolution4.Profile = sketch14
revolution4.ReferenceAxis = (sketch14, ["Axis0"])
revolution4.Angle = 76.5
doc.recompute()

body12 = doc.addObject("PartDesign::Body", "Body011")
body12.BaseFeature = body11
boolean8 = body.newObject("PartDesign::Boolean", "Boolean007")
boolean8.Type = "Cut"
boolean8.addObjects([body12])
doc.recompute()

body13 = doc.addObject("PartDesign::Body", "Body012")
body13.BaseFeature = body11
boolean9 = body2.newObject("PartDesign::Boolean", "Boolean008")
boolean9.Type = "Cut"
boolean9.addObjects([body13])
doc.recompute()

boolean10 = body4.newObject("PartDesign::Boolean", "Boolean009")
boolean10.Type = "Cut"
boolean10.addObjects([body11])
body.AllowCompound = True
doc.recompute()

boolean11 = body.newObject("PartDesign::Boolean", "Boolean010")
boolean11.Type = "Fuse"
boolean11.addObjects([body2])
doc.recompute()

boolean12 = body.newObject("PartDesign::Boolean", "Boolean011")
boolean12.Type = "Fuse"
boolean12.addObjects([body4])

# Sketch on XZ plane
sketch15 = body.newObject("Sketcher::SketchObject", "Sketch014")
sketch15.AttachmentSupport = (doc.getObject("XZ_Plane"), [""])
sketch15.MapMode = "FlatFace"
sketch15.AttachmentOffset = App.Placement(V(0, 0, -3.503 * 25.4), App.Rotation())
add_polygon(sketch15, [(9, -154), (9, -197), (651, -197), (651, -154)])  # lines 0-3
sketch15.addConstraint([
    Sketcher.Constraint("Vertical", 0),
    Sketcher.Constraint("Horizontal", 1),
    Sketcher.Constraint("Vertical", 2),
    Sketcher.Constraint("Horizontal", 3),
    Sketcher.Constraint("DistanceX", 1, 1, 1, 2, Q("25.28 in")),
    Sketcher.Constraint("DistanceY", 0, 2, 0, 1, Q("1.694 in")),
    Sketcher.Constraint("DistanceX", -1, 1, 0, 2, Q("0.36 in")),
    Sketcher.Constraint("DistanceY", 0, 2, -1, 1, Q("7.75 in")),
])
pad9 = body.newObject("PartDesign::Pad", "Pad008")
pad9.Profile = sketch15
pad9.Length = Q("0.25 in")
pad9.Reversed = True

# Sketch on XZ plane
sketch16 = body.newObject("Sketcher::SketchObject", "Sketch015")
sketch16.AttachmentSupport = (doc.getObject("XZ_Plane"), [""])
sketch16.MapMode = "FlatFace"
sketch16.AttachmentOffset = App.Placement(V(0, 0, -3.503 * 25.4), App.Rotation())
sketch16.addGeometry(Part.Circle(V(300, -152, 0), V(0, 0, 1), 156), False)
sketch16.addConstraint([
    Sketcher.Constraint("Diameter", 0, Q("12.25 in")),
    Sketcher.Constraint("DistanceY", 0, 3, -1, 1, Q("6 in")),
    Sketcher.Constraint("DistanceX", -1, 1, 0, 3, Q("11.813 in")),
])
pocket3 = body.newObject("PartDesign::Pocket", "Pocket002")
pocket3.Profile = sketch16
pocket3.Length = Q("0.135 in")

# Sketch on XZ plane
sketch17 = body.newObject("Sketcher::SketchObject", "Sketch016")
sketch17.AttachmentSupport = (doc.getObject("XZ_Plane"), [""])
sketch17.MapMode = "FlatFace"
sketch17.AttachmentOffset = App.Placement(V(0, 0, -5.363 * 25.4), App.Rotation())
sketch17.addGeometry([
    Part.LineSegment(V(222, -197, 0), V(282, -154, 0)),
    Part.LineSegment(V(282, -154, 0), V(318, -154, 0)),
    Part.LineSegment(V(318, -154, 0), V(378, -197, 0)),
    Part.ArcOfCircle(Part.Circle(V(300, -152, 0), V(0, 0, 1), 90), math.radians(-150), math.radians(-30)),
], False)
sketch17.addConstraint([
    Sketcher.Constraint("Coincident", 0, 2, 1, 1),
    Sketcher.Constraint("Coincident", 1, 2, 2, 1),
    Sketcher.Constraint("Coincident", 2, 2, 3, 2),
    Sketcher.Constraint("Coincident", 3, 1, 0, 1),
    Sketcher.Constraint("Horizontal", 1),
    Sketcher.Constraint("Horizontal", 2, 2, 3, 1),
    Sketcher.Constraint("DistanceY", 3, 3, -1, 1, Q("6 in")),
    Sketcher.Constraint("DistanceX", 1, 1, 1, 2, Q("1.44 in")),
    Sketcher.Constraint("DistanceY", 2, 2, -1, 1, Q("7.75 in")),
    Sketcher.Constraint("DistanceX", -1, 1, 3, 3, Q("11.813 in")),
    Sketcher.Constraint("DistanceY", 0, 2, -1, 1, Q("6.056 in")),
    Sketcher.Constraint("DistanceX", -1, 1, 0, 2, Q("11.0925 in")),
    Sketcher.Constraint("Radius", 3, 89.596232),
])
pocket4 = body.newObject("PartDesign::Pocket", "Pocket003")
pocket4.Profile = sketch17
pocket4.Type = "ThroughAll"
pocket4.Reversed = True

doc.recompute()
